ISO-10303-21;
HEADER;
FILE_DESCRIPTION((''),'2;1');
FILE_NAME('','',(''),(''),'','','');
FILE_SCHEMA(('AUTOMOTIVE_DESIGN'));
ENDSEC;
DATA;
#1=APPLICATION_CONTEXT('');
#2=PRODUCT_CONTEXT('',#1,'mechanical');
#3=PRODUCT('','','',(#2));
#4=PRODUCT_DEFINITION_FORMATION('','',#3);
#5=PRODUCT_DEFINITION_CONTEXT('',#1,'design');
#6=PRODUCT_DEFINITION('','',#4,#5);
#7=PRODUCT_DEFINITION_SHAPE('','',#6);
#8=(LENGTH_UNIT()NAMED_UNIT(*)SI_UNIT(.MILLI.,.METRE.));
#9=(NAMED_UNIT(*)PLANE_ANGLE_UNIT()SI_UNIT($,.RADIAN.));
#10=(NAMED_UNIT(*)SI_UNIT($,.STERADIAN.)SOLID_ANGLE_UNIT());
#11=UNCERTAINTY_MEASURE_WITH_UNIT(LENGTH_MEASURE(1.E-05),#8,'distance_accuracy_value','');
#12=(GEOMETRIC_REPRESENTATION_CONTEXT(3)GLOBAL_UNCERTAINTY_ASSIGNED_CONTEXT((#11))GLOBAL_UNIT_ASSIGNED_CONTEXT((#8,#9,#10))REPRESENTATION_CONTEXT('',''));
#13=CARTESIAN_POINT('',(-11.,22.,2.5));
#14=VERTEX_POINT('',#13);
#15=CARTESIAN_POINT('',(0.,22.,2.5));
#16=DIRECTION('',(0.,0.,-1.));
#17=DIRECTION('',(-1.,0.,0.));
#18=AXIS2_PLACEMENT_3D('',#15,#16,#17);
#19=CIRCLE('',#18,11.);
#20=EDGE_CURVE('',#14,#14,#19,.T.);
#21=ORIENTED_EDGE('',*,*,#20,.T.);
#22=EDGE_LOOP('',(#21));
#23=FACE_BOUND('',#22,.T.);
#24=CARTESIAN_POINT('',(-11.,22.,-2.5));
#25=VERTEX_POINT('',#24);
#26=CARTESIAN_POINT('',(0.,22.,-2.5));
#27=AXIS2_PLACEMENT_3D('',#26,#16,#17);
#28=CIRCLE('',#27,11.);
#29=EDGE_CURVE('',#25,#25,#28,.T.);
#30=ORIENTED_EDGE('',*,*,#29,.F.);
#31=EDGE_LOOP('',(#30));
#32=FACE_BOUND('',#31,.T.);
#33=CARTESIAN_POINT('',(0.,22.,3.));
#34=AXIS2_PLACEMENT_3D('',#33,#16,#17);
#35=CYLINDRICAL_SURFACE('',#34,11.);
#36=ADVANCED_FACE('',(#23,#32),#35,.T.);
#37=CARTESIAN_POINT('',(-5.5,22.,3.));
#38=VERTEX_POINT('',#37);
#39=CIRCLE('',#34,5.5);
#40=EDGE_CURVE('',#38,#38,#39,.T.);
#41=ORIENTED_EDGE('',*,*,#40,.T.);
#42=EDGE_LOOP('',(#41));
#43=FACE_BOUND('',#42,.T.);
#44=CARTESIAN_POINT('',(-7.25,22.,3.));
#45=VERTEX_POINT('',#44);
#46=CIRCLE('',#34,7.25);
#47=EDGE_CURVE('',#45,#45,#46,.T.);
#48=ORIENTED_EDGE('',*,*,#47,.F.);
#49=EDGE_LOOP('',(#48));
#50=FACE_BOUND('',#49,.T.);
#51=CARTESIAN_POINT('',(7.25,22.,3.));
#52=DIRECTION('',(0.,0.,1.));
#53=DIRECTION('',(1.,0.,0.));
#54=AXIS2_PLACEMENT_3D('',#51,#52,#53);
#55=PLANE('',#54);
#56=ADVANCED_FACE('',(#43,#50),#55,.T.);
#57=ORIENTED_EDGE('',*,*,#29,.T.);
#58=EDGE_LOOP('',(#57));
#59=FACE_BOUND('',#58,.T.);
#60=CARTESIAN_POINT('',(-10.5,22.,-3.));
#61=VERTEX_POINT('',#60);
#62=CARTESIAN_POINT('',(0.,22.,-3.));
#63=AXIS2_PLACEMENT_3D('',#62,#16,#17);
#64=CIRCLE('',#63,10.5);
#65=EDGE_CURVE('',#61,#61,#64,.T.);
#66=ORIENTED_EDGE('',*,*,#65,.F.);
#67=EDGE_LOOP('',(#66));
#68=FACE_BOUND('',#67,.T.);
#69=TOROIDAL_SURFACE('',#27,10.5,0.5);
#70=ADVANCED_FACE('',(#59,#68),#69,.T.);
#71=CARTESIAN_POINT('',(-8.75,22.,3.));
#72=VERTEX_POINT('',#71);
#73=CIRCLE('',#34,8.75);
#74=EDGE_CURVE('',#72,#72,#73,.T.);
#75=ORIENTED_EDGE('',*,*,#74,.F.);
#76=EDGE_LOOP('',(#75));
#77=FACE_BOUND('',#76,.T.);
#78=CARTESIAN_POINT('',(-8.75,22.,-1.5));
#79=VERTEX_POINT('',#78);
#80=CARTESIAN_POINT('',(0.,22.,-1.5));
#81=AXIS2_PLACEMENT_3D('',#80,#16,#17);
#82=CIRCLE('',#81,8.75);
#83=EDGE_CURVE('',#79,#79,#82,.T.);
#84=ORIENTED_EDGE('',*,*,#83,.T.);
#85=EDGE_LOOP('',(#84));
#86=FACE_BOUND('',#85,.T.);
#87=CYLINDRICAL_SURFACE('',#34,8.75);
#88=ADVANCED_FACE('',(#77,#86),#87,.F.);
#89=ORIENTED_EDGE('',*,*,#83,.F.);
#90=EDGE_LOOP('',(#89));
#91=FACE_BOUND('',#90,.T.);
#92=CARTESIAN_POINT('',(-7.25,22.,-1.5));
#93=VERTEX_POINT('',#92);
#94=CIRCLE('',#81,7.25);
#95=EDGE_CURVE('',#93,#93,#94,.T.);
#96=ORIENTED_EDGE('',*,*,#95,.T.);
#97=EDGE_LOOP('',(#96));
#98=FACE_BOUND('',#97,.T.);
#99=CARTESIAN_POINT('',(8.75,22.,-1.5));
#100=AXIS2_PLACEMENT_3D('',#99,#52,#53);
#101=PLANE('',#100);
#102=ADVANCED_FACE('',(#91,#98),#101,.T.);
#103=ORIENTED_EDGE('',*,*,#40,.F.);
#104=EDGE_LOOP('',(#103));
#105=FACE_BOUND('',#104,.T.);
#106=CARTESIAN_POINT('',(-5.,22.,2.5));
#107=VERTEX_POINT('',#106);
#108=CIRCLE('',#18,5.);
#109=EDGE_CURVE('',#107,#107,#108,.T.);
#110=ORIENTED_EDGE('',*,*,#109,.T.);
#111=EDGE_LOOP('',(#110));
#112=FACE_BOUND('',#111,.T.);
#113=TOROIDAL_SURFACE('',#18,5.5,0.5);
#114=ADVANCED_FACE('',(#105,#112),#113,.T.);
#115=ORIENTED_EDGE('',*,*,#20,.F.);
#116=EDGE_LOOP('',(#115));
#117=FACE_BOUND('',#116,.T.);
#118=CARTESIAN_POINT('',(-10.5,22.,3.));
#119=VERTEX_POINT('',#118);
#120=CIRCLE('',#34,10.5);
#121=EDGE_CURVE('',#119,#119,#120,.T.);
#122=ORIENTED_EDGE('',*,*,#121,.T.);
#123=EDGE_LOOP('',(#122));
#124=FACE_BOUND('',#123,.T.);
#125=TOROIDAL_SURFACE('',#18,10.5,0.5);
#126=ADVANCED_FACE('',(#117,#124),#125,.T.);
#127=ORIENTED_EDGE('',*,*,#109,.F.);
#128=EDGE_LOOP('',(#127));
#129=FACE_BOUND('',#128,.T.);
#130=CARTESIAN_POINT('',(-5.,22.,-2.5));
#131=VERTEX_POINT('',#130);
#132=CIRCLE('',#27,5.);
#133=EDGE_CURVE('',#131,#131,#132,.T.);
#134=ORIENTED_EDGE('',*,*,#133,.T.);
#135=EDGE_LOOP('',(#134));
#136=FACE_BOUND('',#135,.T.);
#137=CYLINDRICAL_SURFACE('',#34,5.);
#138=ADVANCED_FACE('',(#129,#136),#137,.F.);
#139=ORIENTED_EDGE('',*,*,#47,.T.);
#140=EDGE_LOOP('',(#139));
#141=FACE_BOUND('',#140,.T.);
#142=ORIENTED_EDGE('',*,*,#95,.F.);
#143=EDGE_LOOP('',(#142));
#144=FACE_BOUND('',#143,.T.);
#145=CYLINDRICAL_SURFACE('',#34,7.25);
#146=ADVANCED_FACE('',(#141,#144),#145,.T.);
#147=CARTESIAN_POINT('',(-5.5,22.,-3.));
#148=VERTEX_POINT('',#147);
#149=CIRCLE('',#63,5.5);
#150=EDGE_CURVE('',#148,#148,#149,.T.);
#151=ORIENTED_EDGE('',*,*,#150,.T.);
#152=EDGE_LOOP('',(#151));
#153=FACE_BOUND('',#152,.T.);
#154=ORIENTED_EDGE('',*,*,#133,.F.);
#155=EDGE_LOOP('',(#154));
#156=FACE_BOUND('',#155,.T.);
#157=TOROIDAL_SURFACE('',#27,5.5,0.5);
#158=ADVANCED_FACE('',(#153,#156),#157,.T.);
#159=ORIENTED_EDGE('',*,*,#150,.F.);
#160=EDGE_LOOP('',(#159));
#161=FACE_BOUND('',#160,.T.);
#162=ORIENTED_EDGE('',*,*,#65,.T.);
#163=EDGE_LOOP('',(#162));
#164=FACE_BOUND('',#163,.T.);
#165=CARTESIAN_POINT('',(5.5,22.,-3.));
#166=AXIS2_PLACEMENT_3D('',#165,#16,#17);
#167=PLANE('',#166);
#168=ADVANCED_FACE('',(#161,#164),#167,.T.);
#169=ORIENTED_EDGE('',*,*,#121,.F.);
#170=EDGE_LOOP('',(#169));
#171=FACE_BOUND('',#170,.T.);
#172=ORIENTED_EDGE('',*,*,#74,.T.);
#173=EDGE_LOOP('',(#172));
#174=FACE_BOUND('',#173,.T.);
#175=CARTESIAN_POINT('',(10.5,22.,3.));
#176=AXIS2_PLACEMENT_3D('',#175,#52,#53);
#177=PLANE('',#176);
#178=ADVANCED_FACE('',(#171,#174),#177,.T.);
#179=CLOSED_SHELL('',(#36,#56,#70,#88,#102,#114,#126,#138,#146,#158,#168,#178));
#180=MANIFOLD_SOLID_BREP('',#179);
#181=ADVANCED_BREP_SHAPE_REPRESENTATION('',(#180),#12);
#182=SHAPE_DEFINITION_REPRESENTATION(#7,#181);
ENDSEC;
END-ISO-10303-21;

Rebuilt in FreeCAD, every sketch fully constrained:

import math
import FreeCAD as App
import Part
import Sketcher

V = App.Vector
Q = App.Units.Quantity

doc = App.newDocument("Part")
params = doc.addObject("Spreadsheet::Sheet", "Params")
for row, (alias, value) in enumerate([
    ("sketch1_radius", "0.5 mm"),
    ("sketch1_width", "5 mm"),
    ("sketch1_width2", "1.5 mm"),
    ("sketch1_height", "4.5 mm"),
    ("revolution_angle", "360 deg"),
], start=1):
    params.set(f"A{row}", alias)
    params.set(f"B{row}", "=" + value)
    params.setAlias(f"B{row}", alias)

body = doc.addObject("PartDesign::Body", "Body")

# Sketch on XZ plane
sketch1 = doc.addObject("Sketcher::SketchObject", "Sketch")
body.addObject(sketch1)
sketch1.AttachmentSupport = (doc.XZ_Plane, [""])
sketch1.MapMode = "FlatFace"
sketch1.AttachmentOffset = App.Placement(V(0, 0, -22), App.Rotation())
sketch1.addGeometry([
    Part.LineSegment(V(5, 2.5, 0), V(5, -2.5, 0)),  # 0
    Part.ArcOfCircle(Part.Circle(V(5.5, -2.5, 0), V(0, 0, 1), 0.5), math.radians(180), math.radians(270)),  # 1
    Part.LineSegment(V(5.5, -3, 0), V(10.5, -3, 0)),  # 2
    Part.ArcOfCircle(Part.Circle(V(10.5, -2.5, 0), V(0, 0, 1), 0.5), math.radians(-90), math.radians(0)),  # 3
    Part.LineSegment(V(11, -2.5, 0), V(11, 2.5, 0)),  # 4
    Part.ArcOfCircle(Part.Circle(V(10.5, 2.5, 0), V(0, 0, 1), 0.5), math.radians(0), math.radians(90)),  # 5
    Part.LineSegment(V(10.5, 3, 0), V(8.75, 3, 0)),  # 6
    Part.LineSegment(V(8.75, 3, 0), V(8.75, -1.5, 0)),  # 7
    Part.LineSegment(V(8.75, -1.5, 0), V(7.25, -1.5, 0)),  # 8
    Part.LineSegment(V(7.25, -1.5, 0), V(7.25, 3, 0)),  # 9
    Part.LineSegment(V(7.25, 3, 0), V(5.5, 3, 0)),  # 10
    Part.ArcOfCircle(Part.Circle(V(5.5, 2.5, 0), V(0, 0, 1), 0.5), math.radians(90), math.radians(180)),  # 11
], False)
sketch1.addConstraint([
    Sketcher.Constraint("Tangent", 0, 2, 1, 1),
    Sketcher.Constraint("Tangent", 1, 2, 2, 1),
    Sketcher.Constraint("Tangent", 2, 2, 3, 1),
    Sketcher.Constraint("Tangent", 3, 2, 4, 1),
    Sketcher.Constraint("Tangent", 4, 2, 5, 1),
    Sketcher.Constraint("Tangent", 5, 2, 6, 1),
    Sketcher.Constraint("Coincident", 6, 2, 7, 1),
    Sketcher.Constraint("Coincident", 7, 2, 8, 1),
    Sketcher.Constraint("Coincident", 8, 2, 9, 1),
    Sketcher.Constraint("Coincident", 9, 2, 10, 1),
    Sketcher.Constraint("Tangent", 10, 2, 11, 1),
    Sketcher.Constraint("Tangent", 11, 2, 0, 1),
    Sketcher.Constraint("Vertical", 0),
    Sketcher.Constraint("Horizontal", 2),
    Sketcher.Constraint("Vertical", 4),
    Sketcher.Constraint("Horizontal", 6),
    Sketcher.Constraint("Vertical", 7),
    Sketcher.Constraint("Horizontal", 8),
    Sketcher.Constraint("Vertical", 9),
    Sketcher.Constraint("Horizontal", 10),
    Sketcher.Constraint("Equal", 1, 3),
    Sketcher.Constraint("Equal", 3, 5),
    Sketcher.Constraint("Equal", 5, 11),
    Sketcher.Constraint("Horizontal", 5, 3, 11, 3),
    Sketcher.Constraint("Equal", 6, 10),
    Sketcher.Constraint("Equal", 2, 0),
    Sketcher.Constraint("Radius", 1, Q("0.5 mm")),
    Sketcher.Constraint("DistanceX", 2, 1, 2, 2, Q("5 mm")),
    Sketcher.Constraint("DistanceX", 8, 2, 8, 1, Q("1.5 mm")),
    Sketcher.Constraint("DistanceY", 7, 2, 7, 1, Q("4.5 mm")),
    Sketcher.Constraint("DistanceX", -1, 1, 0, 2, Q("5 mm")),
    Sketcher.Constraint("DistanceY", 1, 2, -1, 1, Q("3 mm")),
])
sketch1.setExpression("Constraints[26]", "Params.sketch1_radius")
sketch1.setExpression("Constraints[27]", "Params.sketch1_width")
sketch1.setExpression("Constraints[28]", "Params.sketch1_width2")
sketch1.setExpression("Constraints[29]", "Params.sketch1_height")
revolution = doc.addObject("PartDesign::Revolution", "Revolution")
body.addObject(revolution)
revolution.Profile = sketch1
revolution.ReferenceAxis = (sketch1, ["V_Axis"])
revolution.setExpression("Angle", "Params.revolution_angle")

doc.recompute()
